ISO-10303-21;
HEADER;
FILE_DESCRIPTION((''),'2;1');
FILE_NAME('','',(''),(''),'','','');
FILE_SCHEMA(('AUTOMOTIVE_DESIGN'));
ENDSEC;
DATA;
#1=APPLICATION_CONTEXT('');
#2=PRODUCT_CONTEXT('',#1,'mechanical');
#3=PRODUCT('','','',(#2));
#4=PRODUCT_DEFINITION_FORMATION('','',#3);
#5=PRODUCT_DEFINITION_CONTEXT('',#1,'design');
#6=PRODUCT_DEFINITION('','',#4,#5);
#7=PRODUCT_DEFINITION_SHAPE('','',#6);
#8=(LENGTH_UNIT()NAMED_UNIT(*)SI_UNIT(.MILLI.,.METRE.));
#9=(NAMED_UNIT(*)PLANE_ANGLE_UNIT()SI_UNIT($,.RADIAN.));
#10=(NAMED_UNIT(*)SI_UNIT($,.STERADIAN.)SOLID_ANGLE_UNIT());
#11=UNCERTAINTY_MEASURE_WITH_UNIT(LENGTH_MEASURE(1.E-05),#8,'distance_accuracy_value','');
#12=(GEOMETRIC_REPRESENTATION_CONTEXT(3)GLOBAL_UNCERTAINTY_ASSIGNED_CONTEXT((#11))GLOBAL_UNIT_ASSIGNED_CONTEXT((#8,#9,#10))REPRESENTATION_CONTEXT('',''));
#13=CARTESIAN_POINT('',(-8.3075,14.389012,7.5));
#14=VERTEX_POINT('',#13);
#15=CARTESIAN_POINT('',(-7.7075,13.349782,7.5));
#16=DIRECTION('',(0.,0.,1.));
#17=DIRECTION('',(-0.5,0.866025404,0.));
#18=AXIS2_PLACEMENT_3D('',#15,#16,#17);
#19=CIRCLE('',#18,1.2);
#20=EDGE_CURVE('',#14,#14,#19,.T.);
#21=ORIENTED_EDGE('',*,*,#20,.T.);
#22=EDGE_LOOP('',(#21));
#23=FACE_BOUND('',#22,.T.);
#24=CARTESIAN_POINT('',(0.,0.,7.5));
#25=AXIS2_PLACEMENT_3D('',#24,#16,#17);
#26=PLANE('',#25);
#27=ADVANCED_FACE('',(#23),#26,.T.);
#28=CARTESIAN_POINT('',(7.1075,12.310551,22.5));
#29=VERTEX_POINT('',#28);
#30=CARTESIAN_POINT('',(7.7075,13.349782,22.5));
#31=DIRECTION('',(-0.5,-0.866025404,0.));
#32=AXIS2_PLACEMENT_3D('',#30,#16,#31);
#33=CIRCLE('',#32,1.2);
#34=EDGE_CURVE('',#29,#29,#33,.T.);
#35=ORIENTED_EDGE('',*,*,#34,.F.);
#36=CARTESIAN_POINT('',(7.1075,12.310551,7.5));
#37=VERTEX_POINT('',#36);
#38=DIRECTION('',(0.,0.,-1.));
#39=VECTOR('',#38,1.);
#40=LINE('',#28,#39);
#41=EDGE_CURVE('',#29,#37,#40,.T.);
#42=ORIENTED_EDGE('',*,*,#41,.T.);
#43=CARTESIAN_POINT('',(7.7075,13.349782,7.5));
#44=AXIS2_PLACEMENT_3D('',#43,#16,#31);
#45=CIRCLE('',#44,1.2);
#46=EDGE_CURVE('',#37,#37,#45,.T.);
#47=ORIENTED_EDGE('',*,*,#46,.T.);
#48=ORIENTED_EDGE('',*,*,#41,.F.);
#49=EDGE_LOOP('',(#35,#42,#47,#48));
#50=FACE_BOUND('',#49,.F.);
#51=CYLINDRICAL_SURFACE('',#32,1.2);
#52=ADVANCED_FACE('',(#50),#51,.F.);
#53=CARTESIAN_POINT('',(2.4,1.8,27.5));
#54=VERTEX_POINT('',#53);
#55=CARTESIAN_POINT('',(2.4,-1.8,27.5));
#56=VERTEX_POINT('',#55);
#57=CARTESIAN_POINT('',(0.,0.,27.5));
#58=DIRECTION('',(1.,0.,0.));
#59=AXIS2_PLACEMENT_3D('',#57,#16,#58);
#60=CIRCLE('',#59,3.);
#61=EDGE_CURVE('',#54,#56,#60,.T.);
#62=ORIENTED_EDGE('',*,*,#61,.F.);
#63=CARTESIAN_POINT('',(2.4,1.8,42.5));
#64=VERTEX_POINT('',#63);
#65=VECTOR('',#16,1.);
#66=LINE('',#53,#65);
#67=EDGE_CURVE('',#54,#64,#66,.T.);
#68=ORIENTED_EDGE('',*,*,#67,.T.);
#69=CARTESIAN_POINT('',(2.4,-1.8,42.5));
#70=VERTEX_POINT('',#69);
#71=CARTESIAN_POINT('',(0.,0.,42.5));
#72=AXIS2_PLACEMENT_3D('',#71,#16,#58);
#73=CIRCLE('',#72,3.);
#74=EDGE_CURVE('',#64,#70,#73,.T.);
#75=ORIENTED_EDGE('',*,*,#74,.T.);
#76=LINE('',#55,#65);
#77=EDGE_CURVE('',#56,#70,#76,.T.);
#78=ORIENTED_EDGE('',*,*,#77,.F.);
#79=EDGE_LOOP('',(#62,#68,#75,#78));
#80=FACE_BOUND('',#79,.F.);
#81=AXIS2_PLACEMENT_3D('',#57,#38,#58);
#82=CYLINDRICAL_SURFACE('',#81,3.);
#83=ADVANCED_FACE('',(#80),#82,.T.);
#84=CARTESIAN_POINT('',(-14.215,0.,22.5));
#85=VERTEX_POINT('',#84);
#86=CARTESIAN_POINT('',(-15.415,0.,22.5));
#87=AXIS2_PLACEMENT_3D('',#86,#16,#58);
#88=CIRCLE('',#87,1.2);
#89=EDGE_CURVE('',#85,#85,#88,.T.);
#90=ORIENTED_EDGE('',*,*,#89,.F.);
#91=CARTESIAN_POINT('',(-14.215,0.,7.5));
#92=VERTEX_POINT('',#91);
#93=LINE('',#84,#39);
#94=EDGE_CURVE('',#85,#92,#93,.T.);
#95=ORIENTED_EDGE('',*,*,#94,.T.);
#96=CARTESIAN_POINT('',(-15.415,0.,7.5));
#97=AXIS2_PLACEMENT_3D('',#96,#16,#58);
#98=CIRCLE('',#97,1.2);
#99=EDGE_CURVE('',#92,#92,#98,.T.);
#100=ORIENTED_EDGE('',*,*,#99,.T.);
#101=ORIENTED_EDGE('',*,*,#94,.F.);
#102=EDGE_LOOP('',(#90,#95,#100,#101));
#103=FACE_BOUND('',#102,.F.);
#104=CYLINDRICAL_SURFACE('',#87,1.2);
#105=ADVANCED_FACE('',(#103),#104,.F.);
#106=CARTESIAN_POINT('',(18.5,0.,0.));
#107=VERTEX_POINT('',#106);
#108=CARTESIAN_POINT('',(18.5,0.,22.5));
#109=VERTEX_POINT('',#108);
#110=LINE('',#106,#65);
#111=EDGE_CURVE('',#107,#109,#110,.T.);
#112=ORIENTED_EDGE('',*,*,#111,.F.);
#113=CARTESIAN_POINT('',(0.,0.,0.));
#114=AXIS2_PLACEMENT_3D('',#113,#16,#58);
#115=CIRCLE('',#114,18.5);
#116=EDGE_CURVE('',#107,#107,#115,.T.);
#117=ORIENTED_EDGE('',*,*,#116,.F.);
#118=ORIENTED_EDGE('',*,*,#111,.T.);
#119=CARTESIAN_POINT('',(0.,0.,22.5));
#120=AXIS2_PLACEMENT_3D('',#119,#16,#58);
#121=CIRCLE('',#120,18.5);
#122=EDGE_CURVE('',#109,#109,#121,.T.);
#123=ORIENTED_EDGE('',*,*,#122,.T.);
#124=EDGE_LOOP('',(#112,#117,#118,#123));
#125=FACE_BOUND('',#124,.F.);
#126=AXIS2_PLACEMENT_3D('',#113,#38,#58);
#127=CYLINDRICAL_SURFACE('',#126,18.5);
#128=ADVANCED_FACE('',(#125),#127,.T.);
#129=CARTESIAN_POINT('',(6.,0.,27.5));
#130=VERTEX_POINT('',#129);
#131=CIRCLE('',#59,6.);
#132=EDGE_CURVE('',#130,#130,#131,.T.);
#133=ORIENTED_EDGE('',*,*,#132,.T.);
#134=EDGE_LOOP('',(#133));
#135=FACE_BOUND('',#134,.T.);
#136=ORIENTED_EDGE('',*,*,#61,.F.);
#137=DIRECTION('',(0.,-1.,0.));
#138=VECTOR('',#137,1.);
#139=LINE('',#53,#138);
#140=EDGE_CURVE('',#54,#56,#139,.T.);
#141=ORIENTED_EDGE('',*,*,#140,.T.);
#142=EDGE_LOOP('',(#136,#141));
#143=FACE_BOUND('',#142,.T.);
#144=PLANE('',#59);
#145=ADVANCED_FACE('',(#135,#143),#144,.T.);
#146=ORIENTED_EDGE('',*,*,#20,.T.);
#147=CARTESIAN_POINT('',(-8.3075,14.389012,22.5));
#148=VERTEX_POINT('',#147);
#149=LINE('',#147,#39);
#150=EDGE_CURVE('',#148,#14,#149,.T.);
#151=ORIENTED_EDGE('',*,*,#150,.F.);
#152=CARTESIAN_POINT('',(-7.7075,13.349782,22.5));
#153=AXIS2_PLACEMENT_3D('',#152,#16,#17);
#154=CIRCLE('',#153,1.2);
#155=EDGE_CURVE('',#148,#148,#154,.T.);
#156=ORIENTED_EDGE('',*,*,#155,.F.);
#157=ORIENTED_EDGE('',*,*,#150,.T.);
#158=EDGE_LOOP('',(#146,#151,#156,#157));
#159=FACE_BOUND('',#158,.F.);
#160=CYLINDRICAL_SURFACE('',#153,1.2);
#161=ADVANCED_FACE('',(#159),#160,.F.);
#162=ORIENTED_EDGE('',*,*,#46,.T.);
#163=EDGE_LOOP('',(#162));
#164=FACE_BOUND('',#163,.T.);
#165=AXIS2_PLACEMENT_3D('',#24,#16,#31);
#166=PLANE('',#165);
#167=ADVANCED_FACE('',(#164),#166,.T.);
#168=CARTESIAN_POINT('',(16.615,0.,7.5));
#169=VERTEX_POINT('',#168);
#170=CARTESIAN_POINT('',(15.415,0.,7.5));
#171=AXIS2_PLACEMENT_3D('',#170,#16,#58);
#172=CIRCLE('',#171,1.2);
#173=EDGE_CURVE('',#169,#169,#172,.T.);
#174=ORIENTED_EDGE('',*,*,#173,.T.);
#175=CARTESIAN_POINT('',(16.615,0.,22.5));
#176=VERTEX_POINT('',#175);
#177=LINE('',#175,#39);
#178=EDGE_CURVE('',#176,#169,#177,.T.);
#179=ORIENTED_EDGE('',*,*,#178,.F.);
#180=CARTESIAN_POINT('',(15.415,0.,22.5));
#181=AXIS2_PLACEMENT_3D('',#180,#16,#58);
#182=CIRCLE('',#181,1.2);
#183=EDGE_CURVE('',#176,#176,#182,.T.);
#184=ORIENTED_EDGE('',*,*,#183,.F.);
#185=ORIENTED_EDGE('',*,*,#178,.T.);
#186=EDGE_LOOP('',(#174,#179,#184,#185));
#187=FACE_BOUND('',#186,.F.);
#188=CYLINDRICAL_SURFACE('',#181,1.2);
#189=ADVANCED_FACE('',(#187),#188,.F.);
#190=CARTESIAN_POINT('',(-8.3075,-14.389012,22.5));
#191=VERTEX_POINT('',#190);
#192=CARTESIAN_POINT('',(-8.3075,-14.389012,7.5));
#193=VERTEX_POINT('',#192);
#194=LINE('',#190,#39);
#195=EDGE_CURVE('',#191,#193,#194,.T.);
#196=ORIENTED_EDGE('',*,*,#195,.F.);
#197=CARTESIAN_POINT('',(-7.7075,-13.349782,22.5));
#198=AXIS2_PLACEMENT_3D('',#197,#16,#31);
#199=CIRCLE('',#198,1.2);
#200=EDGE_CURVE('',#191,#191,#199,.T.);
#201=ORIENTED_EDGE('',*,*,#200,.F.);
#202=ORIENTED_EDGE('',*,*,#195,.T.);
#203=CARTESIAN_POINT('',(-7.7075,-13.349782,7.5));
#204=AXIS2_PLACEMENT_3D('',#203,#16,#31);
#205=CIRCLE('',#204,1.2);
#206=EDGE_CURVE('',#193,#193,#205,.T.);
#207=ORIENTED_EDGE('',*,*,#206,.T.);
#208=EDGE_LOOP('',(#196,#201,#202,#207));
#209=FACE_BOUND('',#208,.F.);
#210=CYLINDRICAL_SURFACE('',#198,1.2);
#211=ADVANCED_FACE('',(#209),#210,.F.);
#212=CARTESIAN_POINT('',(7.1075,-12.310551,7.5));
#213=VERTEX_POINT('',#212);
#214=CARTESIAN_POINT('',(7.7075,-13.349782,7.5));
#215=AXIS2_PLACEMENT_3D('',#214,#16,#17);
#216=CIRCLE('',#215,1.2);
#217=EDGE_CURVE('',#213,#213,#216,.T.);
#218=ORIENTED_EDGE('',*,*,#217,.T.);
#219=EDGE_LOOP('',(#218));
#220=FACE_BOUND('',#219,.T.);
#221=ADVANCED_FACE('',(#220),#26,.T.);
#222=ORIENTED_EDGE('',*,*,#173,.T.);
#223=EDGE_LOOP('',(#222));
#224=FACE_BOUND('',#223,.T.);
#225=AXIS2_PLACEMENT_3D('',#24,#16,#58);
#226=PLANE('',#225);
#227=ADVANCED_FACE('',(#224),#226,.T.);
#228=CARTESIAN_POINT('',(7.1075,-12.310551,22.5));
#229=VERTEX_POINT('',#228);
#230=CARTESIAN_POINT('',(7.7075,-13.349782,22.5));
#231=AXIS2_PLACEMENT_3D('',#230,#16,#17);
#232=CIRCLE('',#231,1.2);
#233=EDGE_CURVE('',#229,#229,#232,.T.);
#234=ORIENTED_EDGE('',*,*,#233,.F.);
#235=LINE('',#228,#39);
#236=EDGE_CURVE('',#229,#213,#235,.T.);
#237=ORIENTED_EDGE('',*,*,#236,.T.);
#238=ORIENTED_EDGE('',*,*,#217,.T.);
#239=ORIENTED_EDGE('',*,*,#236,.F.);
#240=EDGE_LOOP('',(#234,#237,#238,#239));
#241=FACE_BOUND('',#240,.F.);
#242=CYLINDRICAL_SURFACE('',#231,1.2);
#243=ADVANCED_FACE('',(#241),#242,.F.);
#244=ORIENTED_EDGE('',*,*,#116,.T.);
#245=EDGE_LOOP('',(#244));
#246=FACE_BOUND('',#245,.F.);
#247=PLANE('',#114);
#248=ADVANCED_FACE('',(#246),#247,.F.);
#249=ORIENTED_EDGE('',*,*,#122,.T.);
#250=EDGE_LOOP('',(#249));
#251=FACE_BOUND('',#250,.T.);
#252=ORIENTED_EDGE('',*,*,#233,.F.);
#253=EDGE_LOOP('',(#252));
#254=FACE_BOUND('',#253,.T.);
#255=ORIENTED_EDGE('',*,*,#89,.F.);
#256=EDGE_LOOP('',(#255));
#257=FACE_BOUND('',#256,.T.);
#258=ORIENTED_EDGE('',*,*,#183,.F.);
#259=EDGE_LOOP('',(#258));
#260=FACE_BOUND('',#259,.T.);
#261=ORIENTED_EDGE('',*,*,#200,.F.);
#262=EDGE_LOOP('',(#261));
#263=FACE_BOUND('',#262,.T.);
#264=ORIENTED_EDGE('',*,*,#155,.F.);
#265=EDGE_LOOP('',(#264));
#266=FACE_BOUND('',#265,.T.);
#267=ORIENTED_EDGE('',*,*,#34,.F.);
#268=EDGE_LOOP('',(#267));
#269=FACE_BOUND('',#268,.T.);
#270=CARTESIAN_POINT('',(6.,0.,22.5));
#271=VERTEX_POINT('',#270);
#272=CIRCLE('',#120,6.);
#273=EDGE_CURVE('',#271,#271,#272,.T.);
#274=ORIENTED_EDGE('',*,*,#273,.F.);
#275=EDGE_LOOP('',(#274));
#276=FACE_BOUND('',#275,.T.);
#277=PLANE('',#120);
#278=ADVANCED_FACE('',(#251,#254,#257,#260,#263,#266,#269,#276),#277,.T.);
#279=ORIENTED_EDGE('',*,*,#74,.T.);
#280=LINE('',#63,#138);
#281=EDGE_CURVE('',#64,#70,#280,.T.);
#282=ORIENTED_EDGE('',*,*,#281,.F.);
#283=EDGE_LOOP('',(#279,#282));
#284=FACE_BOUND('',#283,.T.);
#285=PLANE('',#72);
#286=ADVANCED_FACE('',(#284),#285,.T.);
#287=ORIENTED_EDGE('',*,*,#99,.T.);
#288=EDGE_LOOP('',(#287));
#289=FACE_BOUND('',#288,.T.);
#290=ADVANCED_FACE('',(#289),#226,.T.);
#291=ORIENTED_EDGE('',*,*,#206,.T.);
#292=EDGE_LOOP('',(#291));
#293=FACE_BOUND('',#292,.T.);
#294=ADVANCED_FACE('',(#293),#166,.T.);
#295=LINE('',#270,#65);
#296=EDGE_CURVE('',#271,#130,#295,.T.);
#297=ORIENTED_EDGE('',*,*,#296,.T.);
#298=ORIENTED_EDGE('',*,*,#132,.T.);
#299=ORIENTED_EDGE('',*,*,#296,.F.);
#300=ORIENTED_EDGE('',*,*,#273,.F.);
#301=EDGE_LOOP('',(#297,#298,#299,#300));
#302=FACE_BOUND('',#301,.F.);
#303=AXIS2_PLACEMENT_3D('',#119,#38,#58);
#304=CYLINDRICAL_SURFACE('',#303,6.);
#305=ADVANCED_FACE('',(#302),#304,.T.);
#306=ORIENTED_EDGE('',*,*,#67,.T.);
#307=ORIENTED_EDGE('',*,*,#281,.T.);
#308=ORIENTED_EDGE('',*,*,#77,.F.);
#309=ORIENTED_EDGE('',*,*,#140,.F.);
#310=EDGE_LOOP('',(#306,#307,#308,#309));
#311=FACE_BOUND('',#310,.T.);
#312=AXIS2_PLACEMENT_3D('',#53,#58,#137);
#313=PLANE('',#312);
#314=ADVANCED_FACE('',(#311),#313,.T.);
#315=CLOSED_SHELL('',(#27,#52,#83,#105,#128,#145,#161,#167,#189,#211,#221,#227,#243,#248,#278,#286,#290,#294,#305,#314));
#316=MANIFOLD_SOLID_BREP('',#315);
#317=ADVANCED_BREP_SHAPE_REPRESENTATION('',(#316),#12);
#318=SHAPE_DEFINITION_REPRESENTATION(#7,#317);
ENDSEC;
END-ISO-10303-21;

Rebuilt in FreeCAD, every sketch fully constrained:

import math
import FreeCAD as App
import Part
import Sketcher
from FreeCAD import Vector
Q = App.Units.Quantity

doc = App.newDocument("Part")
body = doc.addObject("PartDesign::Body", "Body")

sketch1 = body.newObject("Sketcher::SketchObject", "Sketch")
sketch1.AttachmentSupport = (doc.getObject("XY_Plane"), [""])
sketch1.MapMode = "FlatFace"
sketch1.addGeometry(Part.Circle(Vector(0, 0, 0), Vector(0, 0, 1), 18.5), False)
sketch1.addConstraint(Sketcher.Constraint("Coincident", 0, 3, -1, 1))
sketch1.addConstraint(Sketcher.Constraint("Diameter", 0, Q("37 mm")))
pad1 = body.newObject("PartDesign::Pad", "Pad")
pad1.Profile = sketch1
pad1.Length = 22.5

sketch2 = body.newObject("Sketcher::SketchObject", "Sketch001")
sketch2.AttachmentSupport = (doc.getObject("XY_Plane"), [""])
sketch2.MapMode = "FlatFace"
sketch2.AttachmentOffset = App.Placement(Vector(0, 0, 22.5), App.Rotation())
sketch2.addGeometry(Part.Circle(Vector(0, 0, 0), Vector(0, 0, 1), 6), False)
sketch2.addConstraint(Sketcher.Constraint("Coincident", 0, 3, -1, 1))
sketch2.addConstraint(Sketcher.Constraint("Diameter", 0, Q("12 mm")))
pad2 = body.newObject("PartDesign::Pad", "Pad001")
pad2.Profile = sketch2
pad2.Length = 5

sketch3 = body.newObject("Sketcher::SketchObject", "Sketch002")
sketch3.AttachmentSupport = (doc.getObject("XY_Plane"), [""])
sketch3.MapMode = "FlatFace"
sketch3.AttachmentOffset = App.Placement(Vector(0, 0, 27.5), App.Rotation())
sketch3.addGeometry(Part.LineSegment(Vector(2.4, -1.8, 0), Vector(2.4, 1.8, 0)), False)
sketch3.addGeometry(Part.ArcOfCircle(Part.Circle(Vector(0, 0, 0), Vector(0, 0, 1), 3), math.radians(36.869898), math.radians(323.130102)), False)
sketch3.addConstraint(Sketcher.Constraint("Coincident", 0, 1, 1, 2))
sketch3.addConstraint(Sketcher.Constraint("Coincident", 1, 1, 0, 2))
sketch3.addConstraint(Sketcher.Constraint("Vertical", 0))
sketch3.addConstraint(Sketcher.Constraint("Coincident", 1, 3, -1, 1))
sketch3.addConstraint(Sketcher.Constraint("Radius", 1, Q("3 mm")))
sketch3.addConstraint(Sketcher.Constraint("DistanceY", 0, 1, 0, 2, Q("3.6 mm")))
pad3 = body.newObject("PartDesign::Pad", "Pad002")
pad3.Profile = sketch3
pad3.Length = 15

sketch4 = body.newObject("Sketcher::SketchObject", "Sketch003")
sketch4.AttachmentSupport = (doc.getObject("XY_Plane"), [""])
sketch4.MapMode = "FlatFace"
sketch4.AttachmentOffset = App.Placement(Vector(0, 0, 22.5), App.Rotation())
sketch4.addGeometry(Part.Circle(Vector(-15.415, 0, 0), Vector(0, 0, 1), 1.2), False)
sketch4.addGeometry(Part.Circle(Vector(15.415, 0, 0), Vector(0, 0, 1), 1.2), False)
sketch4.addConstraint(Sketcher.Constraint("Equal", 0, 1))
sketch4.addConstraint(Sketcher.Constraint("Symmetric", 0, 3, 1, 3, -1, 1))
sketch4.addConstraint(Sketcher.Constraint("PointOnObject", 0, 3, -1))
sketch4.addConstraint(Sketcher.Constraint("Diameter", 0, Q("2.4 mm")))
sketch4.addConstraint(Sketcher.Constraint("DistanceX", 0, 3, 1, 3, Q("30.83 mm")))
pocket1 = body.newObject("PartDesign::Pocket", "Pocket")
pocket1.Profile = sketch4
pocket1.Length = 15
doc.recompute()

polarpattern = body.newObject("PartDesign::PolarPattern", "PolarPattern")
polarpattern.Originals = [pocket1]
polarpattern.Axis = (doc.getObject("Z_Axis"), [""])
polarpattern.Angle = 360
polarpattern.Occurrences = 3
body.Tip = polarpattern

doc.recompute()
